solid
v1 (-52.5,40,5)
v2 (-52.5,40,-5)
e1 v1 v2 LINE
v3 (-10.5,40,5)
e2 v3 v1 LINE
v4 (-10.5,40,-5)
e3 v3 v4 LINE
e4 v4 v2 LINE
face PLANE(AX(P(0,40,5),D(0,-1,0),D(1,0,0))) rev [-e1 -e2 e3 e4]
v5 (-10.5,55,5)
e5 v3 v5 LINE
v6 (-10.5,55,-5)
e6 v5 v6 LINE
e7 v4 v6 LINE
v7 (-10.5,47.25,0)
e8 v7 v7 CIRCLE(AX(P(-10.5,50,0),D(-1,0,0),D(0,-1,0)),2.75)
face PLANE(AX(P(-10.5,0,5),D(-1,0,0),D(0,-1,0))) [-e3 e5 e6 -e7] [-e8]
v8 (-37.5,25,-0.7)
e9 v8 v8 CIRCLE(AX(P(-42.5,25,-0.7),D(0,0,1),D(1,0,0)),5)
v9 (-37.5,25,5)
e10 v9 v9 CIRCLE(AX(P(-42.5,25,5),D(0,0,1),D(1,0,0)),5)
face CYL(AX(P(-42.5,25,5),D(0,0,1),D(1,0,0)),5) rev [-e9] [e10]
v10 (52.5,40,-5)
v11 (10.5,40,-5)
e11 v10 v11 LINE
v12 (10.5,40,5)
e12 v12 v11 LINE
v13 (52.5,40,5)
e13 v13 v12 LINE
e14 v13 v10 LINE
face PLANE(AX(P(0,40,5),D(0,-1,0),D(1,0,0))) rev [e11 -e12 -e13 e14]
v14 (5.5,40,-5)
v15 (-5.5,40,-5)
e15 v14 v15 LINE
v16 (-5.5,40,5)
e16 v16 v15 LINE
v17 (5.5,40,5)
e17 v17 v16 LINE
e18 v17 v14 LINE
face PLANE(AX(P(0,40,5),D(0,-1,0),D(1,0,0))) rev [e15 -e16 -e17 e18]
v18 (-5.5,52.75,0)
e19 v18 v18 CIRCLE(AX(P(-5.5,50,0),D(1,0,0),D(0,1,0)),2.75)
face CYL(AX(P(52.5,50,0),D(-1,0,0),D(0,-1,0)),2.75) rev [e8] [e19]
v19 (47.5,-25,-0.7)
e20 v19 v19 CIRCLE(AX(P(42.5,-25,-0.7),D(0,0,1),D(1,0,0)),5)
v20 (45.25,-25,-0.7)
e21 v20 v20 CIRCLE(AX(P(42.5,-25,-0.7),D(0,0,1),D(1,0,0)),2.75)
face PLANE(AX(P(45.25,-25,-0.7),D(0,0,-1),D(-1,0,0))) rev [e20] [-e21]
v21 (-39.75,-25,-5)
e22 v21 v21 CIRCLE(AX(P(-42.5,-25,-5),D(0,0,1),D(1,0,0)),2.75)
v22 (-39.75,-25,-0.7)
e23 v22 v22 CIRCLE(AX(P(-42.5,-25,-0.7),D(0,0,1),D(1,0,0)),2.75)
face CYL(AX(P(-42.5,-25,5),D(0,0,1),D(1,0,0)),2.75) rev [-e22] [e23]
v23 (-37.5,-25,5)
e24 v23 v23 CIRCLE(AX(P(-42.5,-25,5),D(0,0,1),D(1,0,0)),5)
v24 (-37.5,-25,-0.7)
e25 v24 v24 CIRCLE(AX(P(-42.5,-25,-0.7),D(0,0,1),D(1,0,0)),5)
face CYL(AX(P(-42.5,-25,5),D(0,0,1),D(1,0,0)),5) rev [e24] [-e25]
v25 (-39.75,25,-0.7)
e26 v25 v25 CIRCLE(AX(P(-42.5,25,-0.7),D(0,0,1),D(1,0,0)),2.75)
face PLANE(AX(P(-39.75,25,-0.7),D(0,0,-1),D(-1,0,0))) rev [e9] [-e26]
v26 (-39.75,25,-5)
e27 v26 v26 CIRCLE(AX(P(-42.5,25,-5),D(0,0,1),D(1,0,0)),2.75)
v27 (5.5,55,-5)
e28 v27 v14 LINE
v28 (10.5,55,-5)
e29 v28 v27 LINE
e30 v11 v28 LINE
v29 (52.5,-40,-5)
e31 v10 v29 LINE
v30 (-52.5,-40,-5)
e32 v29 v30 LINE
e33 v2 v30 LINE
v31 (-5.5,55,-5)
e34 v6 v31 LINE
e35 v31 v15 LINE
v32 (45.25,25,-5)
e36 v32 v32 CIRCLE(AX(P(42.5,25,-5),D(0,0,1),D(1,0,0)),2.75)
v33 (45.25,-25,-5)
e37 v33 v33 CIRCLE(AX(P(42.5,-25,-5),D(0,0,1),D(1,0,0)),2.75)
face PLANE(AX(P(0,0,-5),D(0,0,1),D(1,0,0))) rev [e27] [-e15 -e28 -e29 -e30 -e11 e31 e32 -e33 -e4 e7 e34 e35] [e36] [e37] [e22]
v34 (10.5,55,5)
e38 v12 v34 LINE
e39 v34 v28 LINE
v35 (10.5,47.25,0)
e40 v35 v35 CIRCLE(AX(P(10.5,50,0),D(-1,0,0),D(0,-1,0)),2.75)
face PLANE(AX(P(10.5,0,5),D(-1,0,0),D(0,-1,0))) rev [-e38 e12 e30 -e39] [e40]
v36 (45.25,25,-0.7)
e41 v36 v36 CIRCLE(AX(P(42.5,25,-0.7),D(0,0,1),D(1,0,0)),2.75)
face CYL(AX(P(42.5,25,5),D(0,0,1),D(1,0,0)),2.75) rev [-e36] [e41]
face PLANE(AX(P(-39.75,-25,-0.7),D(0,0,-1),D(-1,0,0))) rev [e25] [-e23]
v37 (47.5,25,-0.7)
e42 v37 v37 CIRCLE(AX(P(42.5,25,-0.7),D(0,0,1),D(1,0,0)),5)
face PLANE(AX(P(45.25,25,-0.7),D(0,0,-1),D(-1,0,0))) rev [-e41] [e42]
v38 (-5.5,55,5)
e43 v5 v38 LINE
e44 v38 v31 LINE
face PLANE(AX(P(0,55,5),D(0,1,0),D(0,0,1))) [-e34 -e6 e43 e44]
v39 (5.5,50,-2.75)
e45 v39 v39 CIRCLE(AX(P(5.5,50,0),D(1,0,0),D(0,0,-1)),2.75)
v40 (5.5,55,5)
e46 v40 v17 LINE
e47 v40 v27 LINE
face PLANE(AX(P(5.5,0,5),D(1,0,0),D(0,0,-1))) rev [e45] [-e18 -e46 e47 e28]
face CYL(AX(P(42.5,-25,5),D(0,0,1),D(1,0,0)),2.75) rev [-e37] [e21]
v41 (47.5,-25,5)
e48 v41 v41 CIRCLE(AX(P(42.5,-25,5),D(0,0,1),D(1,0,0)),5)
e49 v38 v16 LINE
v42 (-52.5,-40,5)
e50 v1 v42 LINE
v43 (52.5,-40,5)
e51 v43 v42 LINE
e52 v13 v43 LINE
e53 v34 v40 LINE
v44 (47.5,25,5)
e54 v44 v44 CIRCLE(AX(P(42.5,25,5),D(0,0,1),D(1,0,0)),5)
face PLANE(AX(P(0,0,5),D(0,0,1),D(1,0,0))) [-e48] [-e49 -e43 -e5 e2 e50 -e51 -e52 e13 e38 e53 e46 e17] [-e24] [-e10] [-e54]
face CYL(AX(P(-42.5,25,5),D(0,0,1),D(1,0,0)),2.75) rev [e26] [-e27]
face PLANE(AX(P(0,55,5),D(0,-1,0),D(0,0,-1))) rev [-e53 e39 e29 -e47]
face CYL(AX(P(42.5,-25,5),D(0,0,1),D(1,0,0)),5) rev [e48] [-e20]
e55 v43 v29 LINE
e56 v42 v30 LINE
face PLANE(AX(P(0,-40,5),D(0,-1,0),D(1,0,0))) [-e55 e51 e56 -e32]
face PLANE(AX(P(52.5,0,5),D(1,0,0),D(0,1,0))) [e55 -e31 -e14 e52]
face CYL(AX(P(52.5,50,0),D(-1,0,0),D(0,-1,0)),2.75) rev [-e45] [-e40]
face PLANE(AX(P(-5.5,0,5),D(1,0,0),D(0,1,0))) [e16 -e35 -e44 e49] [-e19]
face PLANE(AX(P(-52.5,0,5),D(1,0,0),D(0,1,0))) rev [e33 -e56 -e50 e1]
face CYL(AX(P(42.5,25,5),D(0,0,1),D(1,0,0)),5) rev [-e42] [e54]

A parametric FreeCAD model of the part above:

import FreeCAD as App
import Part
import Sketcher

V = App.Vector

doc = App.newDocument("Part")
body = doc.addObject("PartDesign::Body", "Body")

# Sketch on XY plane
sketch1 = body.newObject("Sketcher::SketchObject", "Sketch")
sketch1.AttachmentSupport = (doc.getObject("XY_Plane"), [""])
sketch1.MapMode = "FlatFace"
sketch1.addGeometry([
    Part.LineSegment(V(-52.5, 40, 0), V(-52.5, -40, 0)),  # 0
    Part.LineSegment(V(-52.5, -40, 0), V(52.5, -40, 0)),  # 1
    Part.LineSegment(V(52.5, -40, 0), V(52.5, 40, 0)),  # 2
    Part.LineSegment(V(52.5, 40, 0), V(10.5, 40, 0)),  # 3
    Part.LineSegment(V(10.5, 40, 0), V(10.5, 55, 0)),  # 4
    Part.LineSegment(V(10.5, 55, 0), V(5.5, 55, 0)),  # 5
    Part.LineSegment(V(5.5, 55, 0), V(5.5, 40, 0)),  # 6
    Part.LineSegment(V(5.5, 40, 0), V(-5.5, 40, 0)),  # 7
    Part.LineSegment(V(-5.5, 40, 0), V(-5.5, 55, 0)),  # 8
    Part.LineSegment(V(-5.5, 55, 0), V(-10.5, 55, 0)),  # 9
    Part.LineSegment(V(-10.5, 55, 0), V(-10.5, 40, 0)),  # 10
    Part.LineSegment(V(-10.5, 40, 0), V(-52.5, 40, 0)),  # 11
    Part.Circle(V(-42.5, -25, 0), V(0, 0, 1), 2.5),  # 12
    Part.Circle(V(42.5, -25, 0), V(0, 0, 1), 2.5),  # 13
    Part.Circle(V(-42.5, 25, 0), V(0, 0, 1), 2.5),  # 14
    Part.Circle(V(42.5, 25, 0), V(0, 0, 1), 2.5),  # 15
], False)
sketch1.addConstraint([
    Sketcher.Constraint("Coincident", 0, 2, 1, 1),
    Sketcher.Constraint("Coincident", 1, 2, 2, 1),
    Sketcher.Constraint("Coincident", 2, 2, 3, 1),
    Sketcher.Constraint("Coincident", 3, 2, 4, 1),
    Sketcher.Constraint("Coincident", 4, 2, 5, 1),
    Sketcher.Constraint("Coincident", 5, 2, 6, 1),
    Sketcher.Constraint("Coincident", 6, 2, 7, 1),
    Sketcher.Constraint("Coincident", 7, 2, 8, 1),
    Sketcher.Constraint("Coincident", 8, 2, 9, 1),
    Sketcher.Constraint("Coincident", 9, 2, 10, 1),
    Sketcher.Constraint("Coincident", 10, 2, 11, 1),
    Sketcher.Constraint("Coincident", 11, 2, 0, 1),
    Sketcher.Constraint("Vertical", 0),
    Sketcher.Constraint("Horizontal", 1),
    Sketcher.Constraint("Vertical", 2),
    Sketcher.Constraint("Horizontal", 3),
    Sketcher.Constraint("Vertical", 4),
    Sketcher.Constraint("Horizontal", 5),
    Sketcher.Constraint("Vertical", 6),
    Sketcher.Constraint("Horizontal", 7),
    Sketcher.Constraint("Vertical", 8),
    Sketcher.Constraint("Horizontal", 9),
    Sketcher.Constraint("Vertical", 10),
    Sketcher.Constraint("Horizontal", 11),
    Sketcher.Constraint("Equal", 12, 13),
    Sketcher.Constraint("Equal", 13, 14),
    Sketcher.Constraint("Equal", 14, 15),
    Sketcher.Constraint("Symmetric", 13, 3, 14, 3, -1, 1),
    Sketcher.Constraint("Symmetric", 12, 3, 15, 3, -1, 1),
    Sketcher.Constraint("Symmetric", 0, 2, 2, 2, -1, 1),
    Sketcher.Constraint("Symmetric", 12, 3, 13, 3, -2),
    Sketcher.Constraint("Symmetric", 5, 2, 8, 2, -2),
    Sketcher.Constraint("Symmetric", 3, 2, 10, 2, -2),
    Sketcher.Constraint("Horizontal", 3, 2, 6, 2),
    Sketcher.Constraint("Diameter", 12, 5.0),
    Sketcher.Constraint("DistanceX", 1, 1, 1, 2, 105.0),
    Sketcher.Constraint("DistanceX", 3, 2, 3, 1, 42.0),
    Sketcher.Constraint("DistanceX", 5, 2, 5, 1, 5.0),
    Sketcher.Constraint("DistanceY", 0, 2, 0, 1, 80.0),
    Sketcher.Constraint("DistanceY", 4, 1, 4, 2, 15.0),
    Sketcher.Constraint("DistanceY", 12, 3, -1, 1, 25.0),
    Sketcher.Constraint("DistanceX", 12, 3, 13, 3, 85.0),
])
pad1 = body.newObject("PartDesign::Pad", "Pad")
pad1.Profile = sketch1
pad1.Length = 10
pad1.Midplane = True

# Sketch on XY plane
sketch2 = body.newObject("Sketcher::SketchObject", "Sketch001")
sketch2.AttachmentSupport = (doc.getObject("XY_Plane"), [""])
sketch2.MapMode = "FlatFace"
sketch2.AttachmentOffset = App.Placement(V(0, 0, 5), App.Rotation())
sketch2.addGeometry([
    Part.Circle(V(-42.5, 25, 0), V(0, 0, 1), 2.8),
    Part.Circle(V(42.5, 25, 0), V(0, 0, 1), 2.8),
    Part.Circle(V(42.5, -25, 0), V(0, 0, 1), 2.8),
    Part.Circle(V(-42.5, -25, 0), V(0, 0, 1), 2.8),
], False)
sketch2.addConstraint([
    Sketcher.Constraint("Equal", 0, 1),
    Sketcher.Constraint("Equal", 1, 2),
    Sketcher.Constraint("Equal", 2, 3),
    Sketcher.Constraint("Symmetric", 0, 3, 2, 3, -1, 1),
    Sketcher.Constraint("Symmetric", 1, 3, 3, 3, -1, 1),
    Sketcher.Constraint("Symmetric", 0, 3, 1, 3, -2),
    Sketcher.Constraint("Diameter", 0, 5.5),
    Sketcher.Constraint("DistanceY", -1, 1, 0, 3, 25.0),
    Sketcher.Constraint("DistanceX", 0, 3, 1, 3, 85.0),
])
doc.recompute()
hole = body.newObject("PartDesign::Hole", "Hole")
hole.Profile = sketch2
hole.ThreadType = "None"
hole.Diameter = 5.5
hole.DepthType = "ThroughAll"
hole.HoleCutType = "Counterbore"
hole.HoleCutDiameter = 10
hole.HoleCutDepth = 5.7

# Sketch on YZ plane
sketch3 = body.newObject("Sketcher::SketchObject", "Sketch002")
sketch3.AttachmentSupport = (doc.getObject("YZ_Plane"), [""])
sketch3.MapMode = "FlatFace"
sketch3.AttachmentOffset = App.Placement(V(0, 0, -10.5), App.Rotation())
sketch3.addGeometry(Part.Circle(V(50, 0, 0), V(0, 0, 1), 2.8), False)
sketch3.addConstraint([
    Sketcher.Constraint("PointOnObject", 0, 3, -1),
    Sketcher.Constraint("Diameter", 0, 5.5),
    Sketcher.Constraint("DistanceX", -1, 1, 0, 3, 50.0),
])
pocket1 = body.newObject("PartDesign::Pocket", "Pocket")
pocket1.Profile = sketch3
pocket1.Type = "ThroughAll"
pocket1.Reversed = True

doc.recompute()
